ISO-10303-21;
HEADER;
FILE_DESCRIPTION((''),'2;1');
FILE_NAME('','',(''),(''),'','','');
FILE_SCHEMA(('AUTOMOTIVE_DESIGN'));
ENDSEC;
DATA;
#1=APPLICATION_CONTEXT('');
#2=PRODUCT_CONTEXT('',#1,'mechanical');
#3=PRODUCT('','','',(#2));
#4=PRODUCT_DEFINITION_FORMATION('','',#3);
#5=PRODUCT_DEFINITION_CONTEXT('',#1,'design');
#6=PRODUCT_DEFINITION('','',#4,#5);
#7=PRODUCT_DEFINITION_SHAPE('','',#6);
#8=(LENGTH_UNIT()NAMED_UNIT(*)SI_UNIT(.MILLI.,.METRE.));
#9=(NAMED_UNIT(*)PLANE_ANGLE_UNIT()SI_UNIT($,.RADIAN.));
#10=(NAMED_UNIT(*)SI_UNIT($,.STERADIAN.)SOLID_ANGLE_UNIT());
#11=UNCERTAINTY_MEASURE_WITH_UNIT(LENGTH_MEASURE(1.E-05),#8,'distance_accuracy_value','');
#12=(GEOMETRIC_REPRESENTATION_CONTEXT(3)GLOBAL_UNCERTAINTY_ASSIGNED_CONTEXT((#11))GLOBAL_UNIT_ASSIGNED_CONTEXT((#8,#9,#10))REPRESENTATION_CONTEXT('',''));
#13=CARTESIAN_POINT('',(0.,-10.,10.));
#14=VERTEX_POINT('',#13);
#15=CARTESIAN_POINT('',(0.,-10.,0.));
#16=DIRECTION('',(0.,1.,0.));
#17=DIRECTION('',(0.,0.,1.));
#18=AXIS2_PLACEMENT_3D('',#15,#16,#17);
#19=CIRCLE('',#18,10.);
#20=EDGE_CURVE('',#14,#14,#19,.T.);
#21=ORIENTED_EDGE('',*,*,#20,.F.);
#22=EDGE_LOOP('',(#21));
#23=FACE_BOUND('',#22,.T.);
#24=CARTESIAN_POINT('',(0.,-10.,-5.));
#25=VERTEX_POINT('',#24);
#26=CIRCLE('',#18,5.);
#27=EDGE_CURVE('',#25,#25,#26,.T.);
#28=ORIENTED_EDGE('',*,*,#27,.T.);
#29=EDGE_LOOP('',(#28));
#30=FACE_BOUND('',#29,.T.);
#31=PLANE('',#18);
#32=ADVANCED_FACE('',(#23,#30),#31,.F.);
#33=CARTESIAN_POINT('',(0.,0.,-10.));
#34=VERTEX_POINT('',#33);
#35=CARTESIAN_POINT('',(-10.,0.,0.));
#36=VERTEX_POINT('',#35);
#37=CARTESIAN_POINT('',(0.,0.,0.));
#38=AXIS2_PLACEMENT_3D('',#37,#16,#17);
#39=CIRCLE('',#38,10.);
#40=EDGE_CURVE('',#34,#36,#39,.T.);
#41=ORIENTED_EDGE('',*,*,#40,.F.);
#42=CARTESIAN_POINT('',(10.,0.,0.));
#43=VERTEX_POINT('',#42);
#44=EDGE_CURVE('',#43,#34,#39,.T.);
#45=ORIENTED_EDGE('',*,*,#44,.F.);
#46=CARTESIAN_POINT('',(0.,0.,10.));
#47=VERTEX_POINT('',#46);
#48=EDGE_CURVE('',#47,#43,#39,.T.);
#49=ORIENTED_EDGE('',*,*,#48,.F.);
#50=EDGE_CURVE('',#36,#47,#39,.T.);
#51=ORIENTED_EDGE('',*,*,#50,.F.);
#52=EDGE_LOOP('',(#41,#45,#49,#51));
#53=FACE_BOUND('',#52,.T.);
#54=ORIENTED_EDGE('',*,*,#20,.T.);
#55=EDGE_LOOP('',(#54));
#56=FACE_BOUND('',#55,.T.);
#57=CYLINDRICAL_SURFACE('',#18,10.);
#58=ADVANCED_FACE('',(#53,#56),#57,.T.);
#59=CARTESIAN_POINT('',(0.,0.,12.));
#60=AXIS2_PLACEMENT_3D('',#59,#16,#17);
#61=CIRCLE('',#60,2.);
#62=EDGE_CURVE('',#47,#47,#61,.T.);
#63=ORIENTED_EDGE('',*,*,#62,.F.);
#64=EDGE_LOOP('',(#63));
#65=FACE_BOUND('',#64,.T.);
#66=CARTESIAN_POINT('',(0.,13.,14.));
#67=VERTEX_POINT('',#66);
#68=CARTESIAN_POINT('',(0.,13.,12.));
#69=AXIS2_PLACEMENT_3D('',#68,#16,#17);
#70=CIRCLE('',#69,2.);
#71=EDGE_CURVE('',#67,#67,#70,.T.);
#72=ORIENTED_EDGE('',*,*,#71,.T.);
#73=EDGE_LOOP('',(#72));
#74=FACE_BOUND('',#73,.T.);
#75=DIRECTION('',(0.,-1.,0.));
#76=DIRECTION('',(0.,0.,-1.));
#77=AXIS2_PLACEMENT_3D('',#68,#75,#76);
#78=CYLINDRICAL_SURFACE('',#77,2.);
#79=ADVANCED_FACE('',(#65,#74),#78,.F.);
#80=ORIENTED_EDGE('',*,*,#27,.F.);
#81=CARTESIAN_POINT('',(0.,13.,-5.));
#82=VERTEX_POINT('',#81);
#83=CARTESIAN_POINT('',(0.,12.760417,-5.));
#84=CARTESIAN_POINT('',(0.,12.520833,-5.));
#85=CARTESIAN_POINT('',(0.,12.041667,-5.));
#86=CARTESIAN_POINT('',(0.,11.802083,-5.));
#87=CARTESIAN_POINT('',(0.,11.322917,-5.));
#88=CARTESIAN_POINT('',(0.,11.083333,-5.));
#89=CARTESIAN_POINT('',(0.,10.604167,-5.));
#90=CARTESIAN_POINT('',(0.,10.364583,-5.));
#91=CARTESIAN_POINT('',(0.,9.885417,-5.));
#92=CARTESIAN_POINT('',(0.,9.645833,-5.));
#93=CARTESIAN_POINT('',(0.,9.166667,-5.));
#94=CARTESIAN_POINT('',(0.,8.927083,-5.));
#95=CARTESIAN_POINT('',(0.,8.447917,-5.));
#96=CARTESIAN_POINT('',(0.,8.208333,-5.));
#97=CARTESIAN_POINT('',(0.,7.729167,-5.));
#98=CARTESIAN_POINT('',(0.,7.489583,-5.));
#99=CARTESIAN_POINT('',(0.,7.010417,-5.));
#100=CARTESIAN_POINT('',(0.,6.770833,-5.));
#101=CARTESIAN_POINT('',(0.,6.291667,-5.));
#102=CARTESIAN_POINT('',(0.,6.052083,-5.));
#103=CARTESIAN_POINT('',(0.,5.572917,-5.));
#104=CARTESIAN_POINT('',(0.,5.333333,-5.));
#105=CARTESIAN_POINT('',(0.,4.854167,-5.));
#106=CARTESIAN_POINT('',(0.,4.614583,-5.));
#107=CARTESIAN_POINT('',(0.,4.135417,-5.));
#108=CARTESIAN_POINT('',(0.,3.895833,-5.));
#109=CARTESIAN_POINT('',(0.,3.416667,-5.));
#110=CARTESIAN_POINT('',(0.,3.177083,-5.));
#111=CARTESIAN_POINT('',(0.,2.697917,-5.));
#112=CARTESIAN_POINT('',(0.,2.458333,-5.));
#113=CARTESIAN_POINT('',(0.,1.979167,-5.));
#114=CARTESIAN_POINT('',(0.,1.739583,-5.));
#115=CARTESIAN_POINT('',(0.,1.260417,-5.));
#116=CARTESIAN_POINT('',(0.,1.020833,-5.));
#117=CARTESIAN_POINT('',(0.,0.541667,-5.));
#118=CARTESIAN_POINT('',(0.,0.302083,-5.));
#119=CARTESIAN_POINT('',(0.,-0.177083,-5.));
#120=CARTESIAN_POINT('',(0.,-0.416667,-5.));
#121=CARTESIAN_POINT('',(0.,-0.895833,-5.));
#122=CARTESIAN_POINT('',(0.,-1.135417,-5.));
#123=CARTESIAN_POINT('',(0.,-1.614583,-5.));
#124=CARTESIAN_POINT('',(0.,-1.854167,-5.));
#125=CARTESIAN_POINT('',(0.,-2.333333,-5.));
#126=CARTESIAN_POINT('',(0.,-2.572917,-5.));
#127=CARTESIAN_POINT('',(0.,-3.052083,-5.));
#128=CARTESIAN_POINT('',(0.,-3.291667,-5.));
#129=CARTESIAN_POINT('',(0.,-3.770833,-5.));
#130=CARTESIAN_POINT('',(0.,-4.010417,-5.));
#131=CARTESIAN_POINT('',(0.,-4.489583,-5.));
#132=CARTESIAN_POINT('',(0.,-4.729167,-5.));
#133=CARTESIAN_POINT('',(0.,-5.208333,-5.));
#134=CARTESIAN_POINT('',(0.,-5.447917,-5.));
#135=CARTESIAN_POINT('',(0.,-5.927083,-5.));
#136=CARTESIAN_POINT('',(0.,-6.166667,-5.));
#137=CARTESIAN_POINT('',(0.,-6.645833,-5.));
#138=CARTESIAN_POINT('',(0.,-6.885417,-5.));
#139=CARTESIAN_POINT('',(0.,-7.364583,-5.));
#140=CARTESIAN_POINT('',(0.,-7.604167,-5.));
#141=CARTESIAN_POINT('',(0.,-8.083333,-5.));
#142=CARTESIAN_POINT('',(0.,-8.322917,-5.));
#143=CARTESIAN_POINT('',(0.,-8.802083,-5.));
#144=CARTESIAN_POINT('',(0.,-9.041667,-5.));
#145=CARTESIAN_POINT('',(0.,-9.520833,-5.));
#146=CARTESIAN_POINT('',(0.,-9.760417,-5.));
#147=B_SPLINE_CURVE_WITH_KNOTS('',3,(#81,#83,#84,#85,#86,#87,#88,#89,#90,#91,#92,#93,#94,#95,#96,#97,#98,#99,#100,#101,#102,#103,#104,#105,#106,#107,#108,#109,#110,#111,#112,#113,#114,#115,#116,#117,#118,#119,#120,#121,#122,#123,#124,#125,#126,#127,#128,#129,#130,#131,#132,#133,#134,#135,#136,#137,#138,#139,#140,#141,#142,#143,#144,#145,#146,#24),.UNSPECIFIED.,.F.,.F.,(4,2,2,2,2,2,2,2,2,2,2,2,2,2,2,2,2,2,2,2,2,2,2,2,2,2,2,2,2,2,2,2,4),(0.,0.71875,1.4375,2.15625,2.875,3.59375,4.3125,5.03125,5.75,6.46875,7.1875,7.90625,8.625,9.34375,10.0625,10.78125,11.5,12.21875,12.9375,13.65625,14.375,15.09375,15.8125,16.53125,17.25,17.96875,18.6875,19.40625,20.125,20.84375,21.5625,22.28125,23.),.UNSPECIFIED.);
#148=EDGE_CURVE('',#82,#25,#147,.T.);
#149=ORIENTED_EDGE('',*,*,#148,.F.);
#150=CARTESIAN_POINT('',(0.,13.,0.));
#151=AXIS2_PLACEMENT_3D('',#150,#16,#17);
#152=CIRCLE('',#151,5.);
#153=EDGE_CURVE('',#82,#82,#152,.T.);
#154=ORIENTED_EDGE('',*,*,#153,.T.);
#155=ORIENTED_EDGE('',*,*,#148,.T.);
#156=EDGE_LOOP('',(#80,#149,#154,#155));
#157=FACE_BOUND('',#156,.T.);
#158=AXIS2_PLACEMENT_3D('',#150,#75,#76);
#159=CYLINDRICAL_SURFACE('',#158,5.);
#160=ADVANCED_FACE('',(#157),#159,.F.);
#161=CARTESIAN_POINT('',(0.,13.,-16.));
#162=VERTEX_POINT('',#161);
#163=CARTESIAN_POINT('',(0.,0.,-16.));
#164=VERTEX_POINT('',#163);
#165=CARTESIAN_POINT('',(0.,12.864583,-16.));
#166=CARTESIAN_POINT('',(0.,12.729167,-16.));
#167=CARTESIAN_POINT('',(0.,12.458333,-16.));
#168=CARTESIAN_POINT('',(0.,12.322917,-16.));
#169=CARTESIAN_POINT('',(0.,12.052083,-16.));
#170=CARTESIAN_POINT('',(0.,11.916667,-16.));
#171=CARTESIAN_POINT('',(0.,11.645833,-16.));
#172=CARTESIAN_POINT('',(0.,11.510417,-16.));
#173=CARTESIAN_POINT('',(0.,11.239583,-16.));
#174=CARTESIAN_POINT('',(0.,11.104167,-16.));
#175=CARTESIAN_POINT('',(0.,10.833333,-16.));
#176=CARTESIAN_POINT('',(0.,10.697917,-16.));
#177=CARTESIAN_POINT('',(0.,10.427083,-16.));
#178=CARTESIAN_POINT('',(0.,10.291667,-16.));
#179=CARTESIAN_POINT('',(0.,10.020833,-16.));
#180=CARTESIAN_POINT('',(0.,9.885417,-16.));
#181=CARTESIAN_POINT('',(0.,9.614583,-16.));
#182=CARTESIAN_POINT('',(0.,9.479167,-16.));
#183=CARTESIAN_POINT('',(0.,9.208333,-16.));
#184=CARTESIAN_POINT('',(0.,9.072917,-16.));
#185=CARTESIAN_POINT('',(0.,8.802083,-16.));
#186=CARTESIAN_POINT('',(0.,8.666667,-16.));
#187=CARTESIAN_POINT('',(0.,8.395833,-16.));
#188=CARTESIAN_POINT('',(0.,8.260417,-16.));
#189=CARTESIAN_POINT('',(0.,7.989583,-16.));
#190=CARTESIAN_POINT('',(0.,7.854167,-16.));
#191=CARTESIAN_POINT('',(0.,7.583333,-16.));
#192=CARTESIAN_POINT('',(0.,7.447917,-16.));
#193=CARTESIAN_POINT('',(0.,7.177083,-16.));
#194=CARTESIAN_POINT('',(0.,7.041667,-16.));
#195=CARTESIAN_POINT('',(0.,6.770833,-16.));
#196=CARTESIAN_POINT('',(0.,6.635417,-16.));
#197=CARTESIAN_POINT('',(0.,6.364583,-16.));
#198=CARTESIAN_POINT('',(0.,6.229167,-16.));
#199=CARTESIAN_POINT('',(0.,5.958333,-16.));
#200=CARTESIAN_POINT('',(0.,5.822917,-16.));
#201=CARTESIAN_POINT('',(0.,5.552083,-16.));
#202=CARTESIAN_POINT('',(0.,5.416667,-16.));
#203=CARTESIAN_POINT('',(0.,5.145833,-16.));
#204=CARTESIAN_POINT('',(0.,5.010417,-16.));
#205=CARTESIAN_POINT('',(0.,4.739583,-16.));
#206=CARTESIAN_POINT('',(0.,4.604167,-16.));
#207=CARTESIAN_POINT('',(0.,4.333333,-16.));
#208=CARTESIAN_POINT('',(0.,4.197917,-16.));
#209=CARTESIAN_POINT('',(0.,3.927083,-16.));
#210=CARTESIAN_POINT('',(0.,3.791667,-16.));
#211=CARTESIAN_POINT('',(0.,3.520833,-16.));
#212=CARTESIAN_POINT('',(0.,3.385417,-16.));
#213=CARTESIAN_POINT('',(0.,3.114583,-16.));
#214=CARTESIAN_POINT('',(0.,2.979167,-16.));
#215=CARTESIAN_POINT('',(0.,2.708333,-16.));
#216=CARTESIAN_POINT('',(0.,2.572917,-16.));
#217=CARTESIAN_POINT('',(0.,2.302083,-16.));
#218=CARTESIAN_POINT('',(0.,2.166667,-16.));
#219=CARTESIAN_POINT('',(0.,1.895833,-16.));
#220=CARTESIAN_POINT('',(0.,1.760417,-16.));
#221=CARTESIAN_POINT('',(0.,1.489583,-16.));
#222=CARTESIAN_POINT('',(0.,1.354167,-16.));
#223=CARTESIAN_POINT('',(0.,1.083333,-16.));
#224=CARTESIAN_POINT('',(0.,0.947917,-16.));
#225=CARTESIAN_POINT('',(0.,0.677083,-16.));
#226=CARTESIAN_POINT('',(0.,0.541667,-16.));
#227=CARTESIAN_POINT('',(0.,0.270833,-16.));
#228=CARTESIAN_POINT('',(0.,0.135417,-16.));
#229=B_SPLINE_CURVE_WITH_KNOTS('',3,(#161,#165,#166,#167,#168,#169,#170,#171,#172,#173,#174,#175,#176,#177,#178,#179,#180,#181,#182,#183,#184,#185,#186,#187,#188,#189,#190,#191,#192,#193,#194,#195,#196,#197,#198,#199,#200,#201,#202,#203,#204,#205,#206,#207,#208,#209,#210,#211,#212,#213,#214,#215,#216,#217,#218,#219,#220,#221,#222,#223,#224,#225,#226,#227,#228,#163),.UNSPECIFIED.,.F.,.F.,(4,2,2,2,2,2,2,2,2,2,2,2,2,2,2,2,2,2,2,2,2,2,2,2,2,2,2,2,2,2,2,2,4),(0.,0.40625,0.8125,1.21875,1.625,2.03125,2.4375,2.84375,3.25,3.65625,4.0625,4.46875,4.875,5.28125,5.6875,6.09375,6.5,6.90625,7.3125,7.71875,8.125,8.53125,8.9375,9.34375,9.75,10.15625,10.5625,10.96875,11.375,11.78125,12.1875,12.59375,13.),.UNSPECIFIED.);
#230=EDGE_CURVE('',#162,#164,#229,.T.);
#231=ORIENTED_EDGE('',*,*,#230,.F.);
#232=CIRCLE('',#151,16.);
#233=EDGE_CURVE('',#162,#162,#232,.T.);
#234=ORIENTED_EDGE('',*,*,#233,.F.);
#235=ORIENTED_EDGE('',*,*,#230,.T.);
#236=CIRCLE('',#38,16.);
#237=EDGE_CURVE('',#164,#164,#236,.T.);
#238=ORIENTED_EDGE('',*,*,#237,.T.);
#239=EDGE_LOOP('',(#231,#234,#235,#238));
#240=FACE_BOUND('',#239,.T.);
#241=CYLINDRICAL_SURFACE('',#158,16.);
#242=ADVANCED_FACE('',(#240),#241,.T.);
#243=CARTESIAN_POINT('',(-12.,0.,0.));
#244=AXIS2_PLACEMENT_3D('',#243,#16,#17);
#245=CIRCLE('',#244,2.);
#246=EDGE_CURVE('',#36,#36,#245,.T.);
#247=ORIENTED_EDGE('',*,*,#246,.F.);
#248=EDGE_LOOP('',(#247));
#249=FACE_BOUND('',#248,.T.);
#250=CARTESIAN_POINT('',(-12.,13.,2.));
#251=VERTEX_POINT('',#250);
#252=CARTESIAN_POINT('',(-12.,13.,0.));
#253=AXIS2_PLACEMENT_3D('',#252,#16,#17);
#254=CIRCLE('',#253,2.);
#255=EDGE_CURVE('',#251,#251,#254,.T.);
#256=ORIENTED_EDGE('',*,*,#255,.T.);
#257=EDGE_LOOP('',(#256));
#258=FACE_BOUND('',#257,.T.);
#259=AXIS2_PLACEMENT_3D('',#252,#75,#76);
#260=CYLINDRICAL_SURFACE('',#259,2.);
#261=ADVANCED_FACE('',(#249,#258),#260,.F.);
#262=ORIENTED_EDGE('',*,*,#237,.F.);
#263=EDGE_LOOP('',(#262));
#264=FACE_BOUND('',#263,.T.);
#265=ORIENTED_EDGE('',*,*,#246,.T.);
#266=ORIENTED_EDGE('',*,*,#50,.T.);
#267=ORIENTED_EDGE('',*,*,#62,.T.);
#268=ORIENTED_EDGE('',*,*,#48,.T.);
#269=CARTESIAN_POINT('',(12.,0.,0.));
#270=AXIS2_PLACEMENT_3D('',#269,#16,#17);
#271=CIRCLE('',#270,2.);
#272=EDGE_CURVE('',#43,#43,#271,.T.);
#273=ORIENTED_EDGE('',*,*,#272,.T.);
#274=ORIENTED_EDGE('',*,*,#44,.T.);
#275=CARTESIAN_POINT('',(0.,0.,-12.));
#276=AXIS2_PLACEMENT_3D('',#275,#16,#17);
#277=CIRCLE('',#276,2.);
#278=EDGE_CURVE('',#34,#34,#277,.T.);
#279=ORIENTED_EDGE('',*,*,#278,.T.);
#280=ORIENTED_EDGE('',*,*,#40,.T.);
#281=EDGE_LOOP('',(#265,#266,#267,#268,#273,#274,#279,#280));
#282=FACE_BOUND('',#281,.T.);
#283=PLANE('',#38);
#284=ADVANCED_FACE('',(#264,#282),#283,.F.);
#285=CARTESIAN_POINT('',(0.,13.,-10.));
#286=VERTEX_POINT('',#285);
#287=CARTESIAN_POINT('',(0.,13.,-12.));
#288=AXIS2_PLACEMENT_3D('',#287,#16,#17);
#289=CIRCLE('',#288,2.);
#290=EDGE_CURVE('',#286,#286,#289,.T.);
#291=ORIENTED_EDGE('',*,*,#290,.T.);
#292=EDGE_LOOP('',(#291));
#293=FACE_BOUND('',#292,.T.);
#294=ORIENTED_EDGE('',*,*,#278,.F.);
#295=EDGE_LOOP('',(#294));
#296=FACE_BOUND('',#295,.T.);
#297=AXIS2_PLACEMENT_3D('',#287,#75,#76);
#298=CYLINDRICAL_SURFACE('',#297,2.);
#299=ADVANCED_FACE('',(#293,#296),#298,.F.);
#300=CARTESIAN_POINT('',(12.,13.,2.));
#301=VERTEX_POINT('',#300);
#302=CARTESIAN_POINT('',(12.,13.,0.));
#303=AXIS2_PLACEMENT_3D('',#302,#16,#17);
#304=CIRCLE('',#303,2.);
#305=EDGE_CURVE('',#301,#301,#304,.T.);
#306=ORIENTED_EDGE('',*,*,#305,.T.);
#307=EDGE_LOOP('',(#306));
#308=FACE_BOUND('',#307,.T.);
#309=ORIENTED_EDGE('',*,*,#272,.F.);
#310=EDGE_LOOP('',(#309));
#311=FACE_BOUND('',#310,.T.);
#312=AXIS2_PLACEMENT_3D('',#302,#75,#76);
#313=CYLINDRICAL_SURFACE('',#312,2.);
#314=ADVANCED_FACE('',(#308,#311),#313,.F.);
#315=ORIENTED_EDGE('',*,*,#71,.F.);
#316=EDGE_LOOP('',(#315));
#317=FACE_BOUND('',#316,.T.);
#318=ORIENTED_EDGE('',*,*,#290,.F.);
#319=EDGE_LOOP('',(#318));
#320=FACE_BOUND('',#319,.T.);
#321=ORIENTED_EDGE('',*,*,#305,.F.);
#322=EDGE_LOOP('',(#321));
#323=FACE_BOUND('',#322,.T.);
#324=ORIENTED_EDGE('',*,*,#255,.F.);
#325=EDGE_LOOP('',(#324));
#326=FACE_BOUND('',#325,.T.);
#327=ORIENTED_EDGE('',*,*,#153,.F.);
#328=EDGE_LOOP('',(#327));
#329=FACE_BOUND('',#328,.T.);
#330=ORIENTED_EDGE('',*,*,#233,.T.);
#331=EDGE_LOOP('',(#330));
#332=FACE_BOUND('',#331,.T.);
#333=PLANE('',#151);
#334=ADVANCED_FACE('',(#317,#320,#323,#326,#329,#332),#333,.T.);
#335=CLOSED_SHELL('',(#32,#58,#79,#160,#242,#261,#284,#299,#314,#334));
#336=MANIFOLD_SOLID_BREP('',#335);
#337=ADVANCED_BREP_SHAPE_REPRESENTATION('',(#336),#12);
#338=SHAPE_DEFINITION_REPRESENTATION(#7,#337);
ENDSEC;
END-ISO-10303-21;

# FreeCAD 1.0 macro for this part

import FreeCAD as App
import Part
import Sketcher
Q = App.Units.Quantity

doc = App.newDocument("Part")
body = doc.addObject("PartDesign::Body", "Body")

# Sketch on XZ plane
sketch1 = body.newObject("Sketcher::SketchObject", "Sketch")
sketch1.AttachmentSupport = (doc.getObject("XZ_Plane"), [""])
sketch1.MapMode = "FlatFace"
sketch1.addGeometry([
    Part.Circle(App.Vector(0, 0, 0), App.Vector(0, 0, 1), 16),  # 0
    Part.Circle(App.Vector(0, 12, 0), App.Vector(0, 0, 1), 2),  # 1
    Part.Circle(App.Vector(12, 0, 0), App.Vector(0, 0, 1), 2),  # 2
    Part.Circle(App.Vector(-12, 0, 0), App.Vector(0, 0, 1), 2),  # 3
    Part.Circle(App.Vector(0, 0, 0), App.Vector(0, 0, 1), 5),  # 4
    Part.Circle(App.Vector(0, -12, 0), App.Vector(0, 0, 1), 2),  # 5
], False)
sketch1.addConstraint([
    Sketcher.Constraint("Coincident", 0, 3, -1, 1),
    Sketcher.Constraint("Coincident", 4, 3, -1, 1),
    Sketcher.Constraint("Equal", 1, 2),
    Sketcher.Constraint("Equal", 2, 3),
    Sketcher.Constraint("Equal", 3, 5),
    Sketcher.Constraint("Symmetric", 2, 3, 3, 3, -1, 1),
    Sketcher.Constraint("Symmetric", 1, 3, 5, 3, -1, 1),
    Sketcher.Constraint("PointOnObject", 1, 3, -2),
    Sketcher.Constraint("PointOnObject", 2, 3, -1),
    Sketcher.Constraint("Diameter", 0, Q("32 mm")),
    Sketcher.Constraint("Diameter", 1, Q("4 mm")),
    Sketcher.Constraint("Diameter", 4, Q("10 mm")),
    Sketcher.Constraint("DistanceY", -1, 1, 1, 3, Q("12 mm")),
    Sketcher.Constraint("DistanceX", -1, 1, 2, 3, Q("12 mm")),
])
pad1 = body.newObject("PartDesign::Pad", "Pad")
pad1.Profile = sketch1
pad1.Length = 13
pad1.Reversed = True

# Sketch on XZ plane
sketch2 = body.newObject("Sketcher::SketchObject", "Sketch001")
sketch2.AttachmentSupport = (doc.getObject("XZ_Plane"), [""])
sketch2.MapMode = "FlatFace"
sketch2.AttachmentOffset = App.Placement(App.Vector(0, 0, 10), App.Rotation())
sketch2.addGeometry([
    Part.Circle(App.Vector(0, 0, 0), App.Vector(0, 0, 1), 10),
    Part.Circle(App.Vector(0, 0, 0), App.Vector(0, 0, 1), 5),
], False)
sketch2.addConstraint([
    Sketcher.Constraint("Coincident", 0, 3, -1, 1),
    Sketcher.Constraint("Coincident", 1, 3, -1, 1),
    Sketcher.Constraint("Diameter", 0, Q("20 mm")),
    Sketcher.Constraint("Diameter", 1, Q("10 mm")),
])
pad2 = body.newObject("PartDesign::Pad", "Pad001")
pad2.Profile = sketch2
pad2.Length = 10
pad2.Reversed = True

doc.recompute()
